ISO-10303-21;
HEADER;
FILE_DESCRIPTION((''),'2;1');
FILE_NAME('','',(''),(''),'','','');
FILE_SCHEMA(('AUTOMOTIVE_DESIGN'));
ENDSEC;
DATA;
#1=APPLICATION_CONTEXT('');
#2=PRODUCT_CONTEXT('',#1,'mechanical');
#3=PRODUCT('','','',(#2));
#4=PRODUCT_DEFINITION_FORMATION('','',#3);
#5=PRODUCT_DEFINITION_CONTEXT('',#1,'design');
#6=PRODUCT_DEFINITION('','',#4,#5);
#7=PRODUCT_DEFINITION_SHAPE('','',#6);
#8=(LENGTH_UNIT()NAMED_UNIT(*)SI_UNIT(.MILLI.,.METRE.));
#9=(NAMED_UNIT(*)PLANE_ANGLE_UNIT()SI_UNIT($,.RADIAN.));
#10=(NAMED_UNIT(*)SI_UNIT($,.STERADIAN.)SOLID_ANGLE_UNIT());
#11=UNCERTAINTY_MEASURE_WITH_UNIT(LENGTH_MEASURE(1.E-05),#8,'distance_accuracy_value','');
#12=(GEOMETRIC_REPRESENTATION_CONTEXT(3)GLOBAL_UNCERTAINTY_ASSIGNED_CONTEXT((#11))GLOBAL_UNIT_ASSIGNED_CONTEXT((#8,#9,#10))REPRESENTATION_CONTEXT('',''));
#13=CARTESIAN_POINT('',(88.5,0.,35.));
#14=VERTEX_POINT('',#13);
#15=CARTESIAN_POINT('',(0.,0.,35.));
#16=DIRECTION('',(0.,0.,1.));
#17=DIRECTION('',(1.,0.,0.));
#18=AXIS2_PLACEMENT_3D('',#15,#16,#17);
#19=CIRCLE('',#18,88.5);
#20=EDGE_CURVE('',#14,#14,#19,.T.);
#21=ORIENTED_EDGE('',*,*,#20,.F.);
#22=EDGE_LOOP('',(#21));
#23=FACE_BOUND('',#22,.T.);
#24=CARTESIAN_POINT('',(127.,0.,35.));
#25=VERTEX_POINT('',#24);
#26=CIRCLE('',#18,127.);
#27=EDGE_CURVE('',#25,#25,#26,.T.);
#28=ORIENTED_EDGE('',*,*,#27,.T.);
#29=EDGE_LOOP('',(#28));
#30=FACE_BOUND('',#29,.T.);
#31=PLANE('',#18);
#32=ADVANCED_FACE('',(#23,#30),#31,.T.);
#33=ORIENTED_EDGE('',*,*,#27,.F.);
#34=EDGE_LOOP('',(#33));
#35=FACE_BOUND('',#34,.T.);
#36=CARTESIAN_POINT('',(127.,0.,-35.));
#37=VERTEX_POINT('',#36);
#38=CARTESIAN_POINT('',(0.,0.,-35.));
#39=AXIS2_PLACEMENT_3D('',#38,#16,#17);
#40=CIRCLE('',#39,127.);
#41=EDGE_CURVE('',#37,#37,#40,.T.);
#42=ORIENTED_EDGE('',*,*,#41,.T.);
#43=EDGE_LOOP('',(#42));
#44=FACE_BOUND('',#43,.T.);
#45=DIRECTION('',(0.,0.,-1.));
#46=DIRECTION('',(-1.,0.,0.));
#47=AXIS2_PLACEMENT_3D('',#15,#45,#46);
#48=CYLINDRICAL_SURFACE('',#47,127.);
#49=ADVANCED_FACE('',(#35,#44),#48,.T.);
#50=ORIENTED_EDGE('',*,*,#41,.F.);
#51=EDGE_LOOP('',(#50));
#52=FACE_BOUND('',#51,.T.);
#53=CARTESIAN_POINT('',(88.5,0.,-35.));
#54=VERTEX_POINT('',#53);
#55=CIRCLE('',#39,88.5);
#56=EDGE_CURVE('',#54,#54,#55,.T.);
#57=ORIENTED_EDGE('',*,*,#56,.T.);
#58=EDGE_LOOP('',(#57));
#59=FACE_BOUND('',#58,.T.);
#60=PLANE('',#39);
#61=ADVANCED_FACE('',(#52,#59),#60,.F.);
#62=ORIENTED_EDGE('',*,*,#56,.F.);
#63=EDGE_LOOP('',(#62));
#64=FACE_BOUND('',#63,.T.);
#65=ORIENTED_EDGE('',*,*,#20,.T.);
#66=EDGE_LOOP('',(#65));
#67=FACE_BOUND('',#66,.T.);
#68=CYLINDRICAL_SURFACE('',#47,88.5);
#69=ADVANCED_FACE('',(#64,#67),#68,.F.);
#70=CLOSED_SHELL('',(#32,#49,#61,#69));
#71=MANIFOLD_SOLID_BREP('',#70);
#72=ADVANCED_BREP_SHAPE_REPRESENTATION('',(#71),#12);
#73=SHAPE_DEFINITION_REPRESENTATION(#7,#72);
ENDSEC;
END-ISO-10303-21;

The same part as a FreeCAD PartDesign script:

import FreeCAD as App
import Part
import Sketcher
from FreeCAD import Vector
Q = App.Units.Quantity

doc = App.newDocument("Part")
body = doc.addObject("PartDesign::Body", "Body")

sketch1 = body.newObject("Sketcher::SketchObject", "Sketch")
sketch1.AttachmentSupport = (doc.getObject("XY_Plane"), [""])
sketch1.MapMode = "FlatFace"
sketch1.AttachmentOffset = App.Placement(Vector(0, 0, -35), App.Rotation())
sketch1.addGeometry([
    Part.Circle(Vector(0, 0, 0), Vector(0, 0, 1), 127),
    Part.Circle(Vector(0, 0, 0), Vector(0, 0, 1), 88.5),
], False)
sketch1.addConstraint([
    Sketcher.Constraint("Coincident", 0, 3, -1, 1),
    Sketcher.Constraint("Coincident", 1, 3, -1, 1),
    Sketcher.Constraint("Diameter", 0, Q("254 mm")),
    Sketcher.Constraint("Diameter", 1, Q("177 mm")),
])
pad1 = body.newObject("PartDesign::Pad", "Pad")
pad1.Profile = sketch1
pad1.Length = 70

doc.recompute()
